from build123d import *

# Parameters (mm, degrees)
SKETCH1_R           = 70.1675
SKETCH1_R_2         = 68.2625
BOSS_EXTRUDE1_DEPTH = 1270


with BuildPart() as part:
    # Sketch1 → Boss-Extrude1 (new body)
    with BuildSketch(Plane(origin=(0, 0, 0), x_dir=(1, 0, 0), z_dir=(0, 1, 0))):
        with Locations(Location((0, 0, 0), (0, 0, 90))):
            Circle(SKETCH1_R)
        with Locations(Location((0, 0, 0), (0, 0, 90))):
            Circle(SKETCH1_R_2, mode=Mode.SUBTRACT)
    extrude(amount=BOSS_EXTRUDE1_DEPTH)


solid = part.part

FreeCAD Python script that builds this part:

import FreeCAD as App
import Part
import Sketcher
Q = App.Units.Quantity

doc = App.newDocument("Part")
body = doc.addObject("PartDesign::Body", "Body")

# Sketch on XZ plane
sketch1 = body.newObject("Sketcher::SketchObject", "Sketch")
sketch1.AttachmentSupport = (doc.getObject("XZ_Plane"), [""])
sketch1.MapMode = "FlatFace"
sketch1.addGeometry([
    Part.Circle(App.Vector(0, 0, 0), App.Vector(0, 0, 1), 70),
    Part.Circle(App.Vector(0, 0, 0), App.Vector(0, 0, 1), 68),
], False)
sketch1.addConstraint([
    Sketcher.Constraint("Coincident", 0, 3, -1, 1),
    Sketcher.Constraint("Coincident", 1, 3, -1, 1),
    Sketcher.Constraint("Diameter", 0, Q("5.525 in")),
    Sketcher.Constraint("Diameter", 1, Q("5.375 in")),
])
pad1 = body.newObject("PartDesign::Pad", "Pad")
pad1.Profile = sketch1
pad1.Length = Q("50 in")
pad1.Reversed = True

doc.recompute()
